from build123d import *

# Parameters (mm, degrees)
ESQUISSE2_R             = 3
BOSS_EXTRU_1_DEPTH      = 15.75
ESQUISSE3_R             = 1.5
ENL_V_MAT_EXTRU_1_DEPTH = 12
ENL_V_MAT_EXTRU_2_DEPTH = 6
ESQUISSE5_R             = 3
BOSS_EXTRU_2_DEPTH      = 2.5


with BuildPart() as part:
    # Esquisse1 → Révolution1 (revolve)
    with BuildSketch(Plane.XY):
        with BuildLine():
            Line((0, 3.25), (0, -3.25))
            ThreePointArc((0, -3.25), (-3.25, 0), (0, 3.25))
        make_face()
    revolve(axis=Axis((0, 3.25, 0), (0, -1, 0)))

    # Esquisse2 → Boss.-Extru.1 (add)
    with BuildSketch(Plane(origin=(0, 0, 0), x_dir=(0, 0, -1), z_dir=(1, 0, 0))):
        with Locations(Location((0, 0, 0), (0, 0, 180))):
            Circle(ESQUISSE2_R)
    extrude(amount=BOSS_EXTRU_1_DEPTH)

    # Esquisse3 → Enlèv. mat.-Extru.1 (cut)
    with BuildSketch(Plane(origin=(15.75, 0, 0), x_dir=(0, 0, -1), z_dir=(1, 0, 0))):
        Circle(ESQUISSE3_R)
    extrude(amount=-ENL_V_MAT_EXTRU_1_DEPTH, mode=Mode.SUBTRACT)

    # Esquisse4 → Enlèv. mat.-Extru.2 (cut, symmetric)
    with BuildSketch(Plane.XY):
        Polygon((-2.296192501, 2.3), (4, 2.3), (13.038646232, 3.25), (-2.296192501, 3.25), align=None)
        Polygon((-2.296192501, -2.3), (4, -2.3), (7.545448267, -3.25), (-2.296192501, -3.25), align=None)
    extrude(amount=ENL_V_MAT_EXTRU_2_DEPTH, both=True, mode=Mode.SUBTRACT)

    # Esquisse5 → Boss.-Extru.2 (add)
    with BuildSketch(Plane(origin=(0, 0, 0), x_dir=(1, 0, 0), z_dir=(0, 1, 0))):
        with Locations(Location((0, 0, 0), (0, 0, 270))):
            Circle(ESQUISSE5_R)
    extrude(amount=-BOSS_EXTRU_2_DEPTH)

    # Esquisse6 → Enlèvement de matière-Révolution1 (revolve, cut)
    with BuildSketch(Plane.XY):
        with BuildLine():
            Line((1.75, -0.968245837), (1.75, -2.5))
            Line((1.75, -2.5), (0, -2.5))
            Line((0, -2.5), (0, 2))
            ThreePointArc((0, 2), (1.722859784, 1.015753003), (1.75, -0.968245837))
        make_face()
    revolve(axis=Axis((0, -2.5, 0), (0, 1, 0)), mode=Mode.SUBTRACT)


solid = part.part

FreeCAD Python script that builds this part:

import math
import FreeCAD as App
import Part
import Sketcher

V = App.Vector
Q = App.Units.Quantity

doc = App.newDocument("Part")
body = doc.addObject("PartDesign::Body", "Body")

# Sketch on XY plane
sketch1 = body.newObject("Sketcher::SketchObject", "Sketch")
sketch1.AttachmentSupport = (doc.getObject("XY_Plane"), [""])
sketch1.MapMode = "FlatFace"
sketch1.addGeometry(Part.LineSegment(V(0, -3.25, 0), V(0, 3.25, 0)), False)
sketch1.addGeometry(Part.ArcOfCircle(Part.Circle(V(0, 0, 0), V(0, 0, 1), 3.25), math.radians(90), math.radians(270)), False)
sketch1.addConstraint(Sketcher.Constraint("Coincident", 0, 1, 1, 2))
sketch1.addConstraint(Sketcher.Constraint("Coincident", 1, 1, 0, 2))
sketch1.addConstraint(Sketcher.Constraint("Vertical", 0))
sketch1.addConstraint(Sketcher.Constraint("Coincident", 1, 3, -1, 1))
sketch1.addConstraint(Sketcher.Constraint("PointOnObject", 0, 1, -2))
sketch1.addConstraint(Sketcher.Constraint("Radius", 1, 3.25))
revolution = body.newObject("PartDesign::Revolution", "Revolution")
revolution.Profile = sketch1
revolution.ReferenceAxis = (sketch1, ["V_Axis"])
revolution.Angle = 360

# Sketch on YZ plane
sketch2 = body.newObject("Sketcher::SketchObject", "Sketch001")
sketch2.AttachmentSupport = (doc.getObject("YZ_Plane"), [""])
sketch2.MapMode = "FlatFace"
sketch2.addGeometry(Part.Circle(V(0, 0, 0), V(0, 0, 1), 3), False)
sketch2.addConstraint(Sketcher.Constraint("Coincident", 0, 3, -1, 1))
sketch2.addConstraint(Sketcher.Constraint("Diameter", 0, 6.0))
pad1 = body.newObject("PartDesign::Pad", "Pad")
pad1.Profile = sketch2
pad1.Length = 15.75

# Sketch on YZ plane
sketch3 = body.newObject("Sketcher::SketchObject", "Sketch002")
sketch3.AttachmentSupport = (doc.getObject("YZ_Plane"), [""])
sketch3.MapMode = "FlatFace"
sketch3.AttachmentOffset = App.Placement(V(0, 0, 15.75), App.Rotation())
sketch3.addGeometry(Part.Circle(V(0, 0, 0), V(0, 0, 1), 1.5), False)
sketch3.addConstraint(Sketcher.Constraint("Coincident", 0, 3, -1, 1))
sketch3.addConstraint(Sketcher.Constraint("Diameter", 0, 3.0))
pocket1 = body.newObject("PartDesign::Pocket", "Pocket")
pocket1.Profile = sketch3
pocket1.Length = 12

# Sketch on XY plane
sketch4 = body.newObject("Sketcher::SketchObject", "Sketch003")
sketch4.AttachmentSupport = (doc.getObject("XY_Plane"), [""])
sketch4.MapMode = "FlatFace"
sketch4.addGeometry(Part.LineSegment(V(-2.296193, 2.3, 0), V(4, 2.3, 0)), False)
sketch4.addGeometry(Part.LineSegment(V(4, 2.3, 0), V(13.038646, 3.25, 0)), False)
sketch4.addGeometry(Part.LineSegment(V(13.038646, 3.25, 0), V(-2.296193, 3.25, 0)), False)
sketch4.addGeometry(Part.LineSegment(V(-2.296193, 3.25, 0), V(-2.296193, 2.3, 0)), False)
sketch4.addGeometry(Part.LineSegment(V(4, -2.3, 0), V(-2.296193, -2.3, 0)), False)
sketch4.addGeometry(Part.LineSegment(V(-2.296193, -2.3, 0), V(-2.296193, -3.25, 0)), False)
sketch4.addGeometry(Part.LineSegment(V(-2.296193, -3.25, 0), V(7.545448, -3.25, 0)), False)
sketch4.addGeometry(Part.LineSegment(V(7.545448, -3.25, 0), V(4, -2.3, 0)), False)
sketch4.addConstraint(Sketcher.Constraint("Coincident", 0, 2, 1, 1))
sketch4.addConstraint(Sketcher.Constraint("Coincident", 1, 2, 2, 1))
sketch4.addConstraint(Sketcher.Constraint("Coincident", 2, 2, 3, 1))
sketch4.addConstraint(Sketcher.Constraint("Coincident", 3, 2, 0, 1))
sketch4.addConstraint(Sketcher.Constraint("Coincident", 4, 2, 5, 1))
sketch4.addConstraint(Sketcher.Constraint("Coincident", 5, 2, 6, 1))
sketch4.addConstraint(Sketcher.Constraint("Coincident", 6, 2, 7, 1))
sketch4.addConstraint(Sketcher.Constraint("Coincident", 7, 2, 4, 1))
sketch4.addConstraint(Sketcher.Constraint("Horizontal", 0))
sketch4.addConstraint(Sketcher.Constraint("Horizontal", 2))
sketch4.addConstraint(Sketcher.Constraint("Vertical", 3))
sketch4.addConstraint(Sketcher.Constraint("Horizontal", 4))
sketch4.addConstraint(Sketcher.Constraint("Vertical", 5))
sketch4.addConstraint(Sketcher.Constraint("Horizontal", 6))
sketch4.addConstraint(Sketcher.Constraint("Symmetric", 3, 2, 4, 2, -1))
sketch4.addConstraint(Sketcher.Constraint("Vertical", 0, 2, 7, 2))
sketch4.addConstraint(Sketcher.Constraint("Equal", 3, 5))
sketch4.addConstraint(Sketcher.Constraint("Angle", 1, Q("6 deg")))
sketch4.addConstraint(Sketcher.Constraint("Angle", 7, Q("165 deg")))
sketch4.addConstraint(Sketcher.Constraint("DistanceX", -1, 1, 0, 2, 4.0))
sketch4.addConstraint(Sketcher.Constraint("DistanceY", 3, 2, 3, 1, 0.95))
sketch4.addConstraint(Sketcher.Constraint("DistanceY", -1, 1, 0, 2, 2.3))
sketch4.addConstraint(Sketcher.Constraint("DistanceX", 2, 2, 2, 1, 15.334839))
pocket2 = body.newObject("PartDesign::Pocket", "Pocket001")
pocket2.Profile = sketch4
pocket2.Length = 12
pocket2.Midplane = True

# Sketch on XZ plane
sketch5 = body.newObject("Sketcher::SketchObject", "Sketch004")
sketch5.AttachmentSupport = (doc.getObject("XZ_Plane"), [""])
sketch5.MapMode = "FlatFace"
sketch5.addGeometry(Part.Circle(V(0, 0, 0), V(0, 0, 1), 3), False)
sketch5.addConstraint(Sketcher.Constraint("Coincident", 0, 3, -1, 1))
sketch5.addConstraint(Sketcher.Constraint("Diameter", 0, 6.0))
pad2 = body.newObject("PartDesign::Pad", "Pad001")
pad2.Profile = sketch5
pad2.Length = 2.5

# Sketch on XY plane
sketch6 = body.newObject("Sketcher::SketchObject", "Sketch005")
sketch6.AttachmentSupport = (doc.getObject("XY_Plane"), [""])
sketch6.MapMode = "FlatFace"
sketch6.addGeometry(Part.LineSegment(V(1.75, -2.5, 0), V(1.75, -0.968246, 0)), False)
sketch6.addGeometry(Part.ArcOfCircle(Part.Circle(V(0, 0, 0), V(0, 0, 1), 2), math.radians(-28.955024), math.radians(90)), False)
sketch6.addGeometry(Part.LineSegment(V(0, 2, 0), V(0, -2.5, 0)), False)
sketch6.addGeometry(Part.LineSegment(V(0, -2.5, 0), V(1.75, -2.5, 0)), False)
sketch6.addConstraint(Sketcher.Constraint("Coincident", 0, 2, 1, 1))
sketch6.addConstraint(Sketcher.Constraint("Coincident", 1, 2, 2, 1))
sketch6.addConstraint(Sketcher.Constraint("Coincident", 2, 2, 3, 1))
sketch6.addConstraint(Sketcher.Constraint("Coincident", 3, 2, 0, 1))
sketch6.addConstraint(Sketcher.Constraint("Vertical", 0))
sketch6.addConstraint(Sketcher.Constraint("Vertical", 2))
sketch6.addConstraint(Sketcher.Constraint("Horizontal", 3))
sketch6.addConstraint(Sketcher.Constraint("Coincident", 1, 3, -1, 1))
sketch6.addConstraint(Sketcher.Constraint("PointOnObject", 1, 2, -2))
sketch6.addConstraint(Sketcher.Constraint("Radius", 1, 2.0))
sketch6.addConstraint(Sketcher.Constraint("DistanceY", 2, 2, 2, 1, 4.5))
sketch6.addConstraint(Sketcher.Constraint("DistanceX", 3, 1, 3, 2, 1.75))
groove = body.newObject("PartDesign::Groove", "Groove")
groove.Profile = sketch6
groove.ReferenceAxis = (sketch6, ["V_Axis"])
groove.Angle = 360

doc.recompute()
